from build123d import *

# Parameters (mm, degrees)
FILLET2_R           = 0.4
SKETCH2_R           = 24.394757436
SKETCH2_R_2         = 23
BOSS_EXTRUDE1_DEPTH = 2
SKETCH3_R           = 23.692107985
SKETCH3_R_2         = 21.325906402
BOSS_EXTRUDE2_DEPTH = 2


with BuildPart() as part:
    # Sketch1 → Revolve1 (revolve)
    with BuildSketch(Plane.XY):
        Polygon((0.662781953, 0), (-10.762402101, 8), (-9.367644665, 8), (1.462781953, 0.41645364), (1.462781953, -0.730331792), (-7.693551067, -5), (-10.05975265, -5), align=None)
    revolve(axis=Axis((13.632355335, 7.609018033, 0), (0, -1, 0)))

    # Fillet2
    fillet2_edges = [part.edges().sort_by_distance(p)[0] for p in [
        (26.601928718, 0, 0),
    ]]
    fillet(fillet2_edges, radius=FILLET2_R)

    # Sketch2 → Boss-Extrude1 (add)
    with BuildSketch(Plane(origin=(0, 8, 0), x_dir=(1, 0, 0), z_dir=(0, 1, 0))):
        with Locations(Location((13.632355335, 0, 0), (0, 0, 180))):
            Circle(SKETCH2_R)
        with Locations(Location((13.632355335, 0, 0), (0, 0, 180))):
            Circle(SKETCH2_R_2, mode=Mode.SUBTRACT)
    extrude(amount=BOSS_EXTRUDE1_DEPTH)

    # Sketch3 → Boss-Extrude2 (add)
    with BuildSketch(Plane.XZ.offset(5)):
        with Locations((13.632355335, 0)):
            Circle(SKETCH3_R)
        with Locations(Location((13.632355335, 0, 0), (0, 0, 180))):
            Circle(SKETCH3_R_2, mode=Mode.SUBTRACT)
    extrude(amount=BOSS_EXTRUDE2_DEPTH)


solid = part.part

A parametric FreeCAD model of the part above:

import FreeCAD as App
import Part
import Sketcher
from FreeCAD import Vector
Q = App.Units.Quantity


def edges_at(feature, points):
    """Names of the edges that pass closest to the given points."""
    edges = feature.Shape.Edges
    near = lambda p: min(range(len(edges)), key=lambda i: edges[i].distToShape(Part.Vertex(*p))[0])
    return sorted({f"Edge{near(p) + 1}" for p in points})

doc = App.newDocument("Part")
params = doc.addObject("Spreadsheet::Sheet", "Params")
for row, (alias, value) in enumerate([
    ("sketch1_height", "13 mm"),
    ("revolution_angle", "360 deg"),
    ("fillet_radius", "0.4 mm"),
    ("sketch2_diameter", "46 mm"),
    ("pad1_length", "2 mm"),
    ("pad2_length", "2 mm"),
], start=1):
    params.set(f"A{row}", alias)
    params.set(f"B{row}", "=" + value)
    params.setAlias(f"B{row}", alias)

body = doc.addObject("PartDesign::Body", "Body")

sketch1 = body.newObject("Sketcher::SketchObject", "Sketch")
sketch1.AttachmentSupport = (doc.getObject("XY_Plane"), [""])
sketch1.MapMode = "FlatFace"
sketch1.addGeometry(Part.LineSegment(Vector(-10.8, 8, 0), Vector(0.7, 0, 0)), False)
sketch1.addGeometry(Part.LineSegment(Vector(0.7, 0, 0), Vector(-10.1, -5, 0)), False)
sketch1.addGeometry(Part.LineSegment(Vector(-10.1, -5, 0), Vector(-7.7, -5, 0)), False)
sketch1.addGeometry(Part.LineSegment(Vector(-7.7, -5, 0), Vector(1.5, -0.7, 0)), False)
sketch1.addGeometry(Part.LineSegment(Vector(1.5, -0.7, 0), Vector(1.5, 0.4, 0)), False)
sketch1.addGeometry(Part.LineSegment(Vector(1.5, 0.4, 0), Vector(-9.4, 8, 0)), False)
sketch1.addGeometry(Part.LineSegment(Vector(-9.4, 8, 0), Vector(-10.8, 8, 0)), False)
sketch1.addGeometry(Part.LineSegment(Vector(13.6, 8, 0), Vector(13.6, -5, 0)), True)
sketch1.addConstraint(Sketcher.Constraint("Coincident", 0, 2, 1, 1))
sketch1.addConstraint(Sketcher.Constraint("Coincident", 1, 2, 2, 1))
sketch1.addConstraint(Sketcher.Constraint("Coincident", 2, 2, 3, 1))
sketch1.addConstraint(Sketcher.Constraint("Coincident", 3, 2, 4, 1))
sketch1.addConstraint(Sketcher.Constraint("Coincident", 4, 2, 5, 1))
sketch1.addConstraint(Sketcher.Constraint("Coincident", 5, 2, 6, 1))
sketch1.addConstraint(Sketcher.Constraint("Coincident", 6, 2, 0, 1))
sketch1.addConstraint(Sketcher.Constraint("Horizontal", 2))
sketch1.addConstraint(Sketcher.Constraint("Vertical", 4))
sketch1.addConstraint(Sketcher.Constraint("Horizontal", 6))
sketch1.addConstraint(Sketcher.Constraint("Vertical", 7))
sketch1.addConstraint(Sketcher.Constraint("PointOnObject", 0, 2, -1))
sketch1.addConstraint(Sketcher.Constraint("Parallel", 1, 3))
sketch1.addConstraint(Sketcher.Constraint("Parallel", 0, 5))
sketch1.addConstraint(Sketcher.Constraint("Horizontal", 6, 2, 7, 1))
sketch1.addConstraint(Sketcher.Constraint("Horizontal", 2, 2, 7, 2))
sketch1.addConstraint(Sketcher.Constraint("DistanceY", 7, 2, 7, 1, Q("13 mm")))
sketch1.addConstraint(Sketcher.Constraint("Angle", 0, Q("-35 deg")))
sketch1.addConstraint(Sketcher.Constraint("Angle", 1, Q("-155 deg")))
sketch1.addConstraint(Sketcher.Constraint("DistanceY", 1, 2, -1, 1, Q("5 mm")))
sketch1.addConstraint(Sketcher.Constraint("DistanceX", 5, 2, 7, 1, Q("23 mm")))
sketch1.addConstraint(Sketcher.Constraint("DistanceX", 0, 2, 3, 2, Q("0.8 mm")))
sketch1.addConstraint(Sketcher.Constraint("DistanceX", 2, 1, 2, 2, Q("2.366202 mm")))
sketch1.addConstraint(Sketcher.Constraint("Distance", 5, Q("13.22151 mm")))
sketch1.addConstraint(Sketcher.Constraint("DistanceX", -1, 1, 0, 2, Q("0.662782 mm")))
sketch1.setExpression("Constraints[16]", "Params.sketch1_height")
revolution = body.newObject("PartDesign::Revolution", "Revolution")
revolution.Profile = sketch1
revolution.ReferenceAxis = (sketch1, ["Axis0"])
revolution.setExpression("Angle", "Params.revolution_angle")
doc.recompute()

fillet = body.newObject("PartDesign::Fillet", "Fillet")
fillet.Base = (revolution, edges_at(revolution, [(26.602, 0, 0)]))
fillet.setExpression("Radius", "Params.fillet_radius")

sketch2 = body.newObject("Sketcher::SketchObject", "Sketch001")
sketch2.AttachmentSupport = (doc.getObject("XZ_Plane"), [""])
sketch2.MapMode = "FlatFace"
sketch2.AttachmentOffset = App.Placement(Vector(0, 0, -8), App.Rotation())
sketch2.addGeometry(Part.Circle(Vector(14, 0, 0), Vector(0, 0, 1), 24), False)
sketch2.addGeometry(Part.Circle(Vector(14, 0, 0), Vector(0, 0, 1), 23), False)
sketch2.addConstraint(Sketcher.Constraint("Coincident", 1, 3, 0, 3))
sketch2.addConstraint(Sketcher.Constraint("PointOnObject", 0, 3, -1))
sketch2.addConstraint(Sketcher.Constraint("Diameter", 1, Q("46 mm")))
sketch2.addConstraint(Sketcher.Constraint("Diameter", 0, Q("48.789515 mm")))
sketch2.addConstraint(Sketcher.Constraint("DistanceX", -1, 1, 0, 3, Q("13.632355 mm")))
sketch2.setExpression("Constraints[2]", "Params.sketch2_diameter")
pad1 = body.newObject("PartDesign::Pad", "Pad")
pad1.Profile = sketch2
pad1.setExpression("Length", "Params.pad1_length")
pad1.Reversed = True

sketch3 = body.newObject("Sketcher::SketchObject", "Sketch002")
sketch3.AttachmentSupport = (doc.getObject("XZ_Plane"), [""])
sketch3.MapMode = "FlatFace"
sketch3.AttachmentOffset = App.Placement(Vector(0, 0, 5), App.Rotation())
sketch3.addGeometry(Part.Circle(Vector(14, 0, 0), Vector(0, 0, 1), 24), False)
sketch3.addGeometry(Part.Circle(Vector(14, 0, 0), Vector(0, 0, 1), 21), False)
sketch3.addConstraint(Sketcher.Constraint("Coincident", 1, 3, 0, 3))
sketch3.addConstraint(Sketcher.Constraint("PointOnObject", 0, 3, -1))
sketch3.addConstraint(Sketcher.Constraint("Diameter", 0, Q("47.384216 mm")))
sketch3.addConstraint(Sketcher.Constraint("Diameter", 1, Q("42.651813 mm")))
sketch3.addConstraint(Sketcher.Constraint("DistanceX", -1, 1, 0, 3, Q("13.632355 mm")))
pad2 = body.newObject("PartDesign::Pad", "Pad001")
pad2.Profile = sketch3
pad2.setExpression("Length", "Params.pad2_length")

doc.recompute()
